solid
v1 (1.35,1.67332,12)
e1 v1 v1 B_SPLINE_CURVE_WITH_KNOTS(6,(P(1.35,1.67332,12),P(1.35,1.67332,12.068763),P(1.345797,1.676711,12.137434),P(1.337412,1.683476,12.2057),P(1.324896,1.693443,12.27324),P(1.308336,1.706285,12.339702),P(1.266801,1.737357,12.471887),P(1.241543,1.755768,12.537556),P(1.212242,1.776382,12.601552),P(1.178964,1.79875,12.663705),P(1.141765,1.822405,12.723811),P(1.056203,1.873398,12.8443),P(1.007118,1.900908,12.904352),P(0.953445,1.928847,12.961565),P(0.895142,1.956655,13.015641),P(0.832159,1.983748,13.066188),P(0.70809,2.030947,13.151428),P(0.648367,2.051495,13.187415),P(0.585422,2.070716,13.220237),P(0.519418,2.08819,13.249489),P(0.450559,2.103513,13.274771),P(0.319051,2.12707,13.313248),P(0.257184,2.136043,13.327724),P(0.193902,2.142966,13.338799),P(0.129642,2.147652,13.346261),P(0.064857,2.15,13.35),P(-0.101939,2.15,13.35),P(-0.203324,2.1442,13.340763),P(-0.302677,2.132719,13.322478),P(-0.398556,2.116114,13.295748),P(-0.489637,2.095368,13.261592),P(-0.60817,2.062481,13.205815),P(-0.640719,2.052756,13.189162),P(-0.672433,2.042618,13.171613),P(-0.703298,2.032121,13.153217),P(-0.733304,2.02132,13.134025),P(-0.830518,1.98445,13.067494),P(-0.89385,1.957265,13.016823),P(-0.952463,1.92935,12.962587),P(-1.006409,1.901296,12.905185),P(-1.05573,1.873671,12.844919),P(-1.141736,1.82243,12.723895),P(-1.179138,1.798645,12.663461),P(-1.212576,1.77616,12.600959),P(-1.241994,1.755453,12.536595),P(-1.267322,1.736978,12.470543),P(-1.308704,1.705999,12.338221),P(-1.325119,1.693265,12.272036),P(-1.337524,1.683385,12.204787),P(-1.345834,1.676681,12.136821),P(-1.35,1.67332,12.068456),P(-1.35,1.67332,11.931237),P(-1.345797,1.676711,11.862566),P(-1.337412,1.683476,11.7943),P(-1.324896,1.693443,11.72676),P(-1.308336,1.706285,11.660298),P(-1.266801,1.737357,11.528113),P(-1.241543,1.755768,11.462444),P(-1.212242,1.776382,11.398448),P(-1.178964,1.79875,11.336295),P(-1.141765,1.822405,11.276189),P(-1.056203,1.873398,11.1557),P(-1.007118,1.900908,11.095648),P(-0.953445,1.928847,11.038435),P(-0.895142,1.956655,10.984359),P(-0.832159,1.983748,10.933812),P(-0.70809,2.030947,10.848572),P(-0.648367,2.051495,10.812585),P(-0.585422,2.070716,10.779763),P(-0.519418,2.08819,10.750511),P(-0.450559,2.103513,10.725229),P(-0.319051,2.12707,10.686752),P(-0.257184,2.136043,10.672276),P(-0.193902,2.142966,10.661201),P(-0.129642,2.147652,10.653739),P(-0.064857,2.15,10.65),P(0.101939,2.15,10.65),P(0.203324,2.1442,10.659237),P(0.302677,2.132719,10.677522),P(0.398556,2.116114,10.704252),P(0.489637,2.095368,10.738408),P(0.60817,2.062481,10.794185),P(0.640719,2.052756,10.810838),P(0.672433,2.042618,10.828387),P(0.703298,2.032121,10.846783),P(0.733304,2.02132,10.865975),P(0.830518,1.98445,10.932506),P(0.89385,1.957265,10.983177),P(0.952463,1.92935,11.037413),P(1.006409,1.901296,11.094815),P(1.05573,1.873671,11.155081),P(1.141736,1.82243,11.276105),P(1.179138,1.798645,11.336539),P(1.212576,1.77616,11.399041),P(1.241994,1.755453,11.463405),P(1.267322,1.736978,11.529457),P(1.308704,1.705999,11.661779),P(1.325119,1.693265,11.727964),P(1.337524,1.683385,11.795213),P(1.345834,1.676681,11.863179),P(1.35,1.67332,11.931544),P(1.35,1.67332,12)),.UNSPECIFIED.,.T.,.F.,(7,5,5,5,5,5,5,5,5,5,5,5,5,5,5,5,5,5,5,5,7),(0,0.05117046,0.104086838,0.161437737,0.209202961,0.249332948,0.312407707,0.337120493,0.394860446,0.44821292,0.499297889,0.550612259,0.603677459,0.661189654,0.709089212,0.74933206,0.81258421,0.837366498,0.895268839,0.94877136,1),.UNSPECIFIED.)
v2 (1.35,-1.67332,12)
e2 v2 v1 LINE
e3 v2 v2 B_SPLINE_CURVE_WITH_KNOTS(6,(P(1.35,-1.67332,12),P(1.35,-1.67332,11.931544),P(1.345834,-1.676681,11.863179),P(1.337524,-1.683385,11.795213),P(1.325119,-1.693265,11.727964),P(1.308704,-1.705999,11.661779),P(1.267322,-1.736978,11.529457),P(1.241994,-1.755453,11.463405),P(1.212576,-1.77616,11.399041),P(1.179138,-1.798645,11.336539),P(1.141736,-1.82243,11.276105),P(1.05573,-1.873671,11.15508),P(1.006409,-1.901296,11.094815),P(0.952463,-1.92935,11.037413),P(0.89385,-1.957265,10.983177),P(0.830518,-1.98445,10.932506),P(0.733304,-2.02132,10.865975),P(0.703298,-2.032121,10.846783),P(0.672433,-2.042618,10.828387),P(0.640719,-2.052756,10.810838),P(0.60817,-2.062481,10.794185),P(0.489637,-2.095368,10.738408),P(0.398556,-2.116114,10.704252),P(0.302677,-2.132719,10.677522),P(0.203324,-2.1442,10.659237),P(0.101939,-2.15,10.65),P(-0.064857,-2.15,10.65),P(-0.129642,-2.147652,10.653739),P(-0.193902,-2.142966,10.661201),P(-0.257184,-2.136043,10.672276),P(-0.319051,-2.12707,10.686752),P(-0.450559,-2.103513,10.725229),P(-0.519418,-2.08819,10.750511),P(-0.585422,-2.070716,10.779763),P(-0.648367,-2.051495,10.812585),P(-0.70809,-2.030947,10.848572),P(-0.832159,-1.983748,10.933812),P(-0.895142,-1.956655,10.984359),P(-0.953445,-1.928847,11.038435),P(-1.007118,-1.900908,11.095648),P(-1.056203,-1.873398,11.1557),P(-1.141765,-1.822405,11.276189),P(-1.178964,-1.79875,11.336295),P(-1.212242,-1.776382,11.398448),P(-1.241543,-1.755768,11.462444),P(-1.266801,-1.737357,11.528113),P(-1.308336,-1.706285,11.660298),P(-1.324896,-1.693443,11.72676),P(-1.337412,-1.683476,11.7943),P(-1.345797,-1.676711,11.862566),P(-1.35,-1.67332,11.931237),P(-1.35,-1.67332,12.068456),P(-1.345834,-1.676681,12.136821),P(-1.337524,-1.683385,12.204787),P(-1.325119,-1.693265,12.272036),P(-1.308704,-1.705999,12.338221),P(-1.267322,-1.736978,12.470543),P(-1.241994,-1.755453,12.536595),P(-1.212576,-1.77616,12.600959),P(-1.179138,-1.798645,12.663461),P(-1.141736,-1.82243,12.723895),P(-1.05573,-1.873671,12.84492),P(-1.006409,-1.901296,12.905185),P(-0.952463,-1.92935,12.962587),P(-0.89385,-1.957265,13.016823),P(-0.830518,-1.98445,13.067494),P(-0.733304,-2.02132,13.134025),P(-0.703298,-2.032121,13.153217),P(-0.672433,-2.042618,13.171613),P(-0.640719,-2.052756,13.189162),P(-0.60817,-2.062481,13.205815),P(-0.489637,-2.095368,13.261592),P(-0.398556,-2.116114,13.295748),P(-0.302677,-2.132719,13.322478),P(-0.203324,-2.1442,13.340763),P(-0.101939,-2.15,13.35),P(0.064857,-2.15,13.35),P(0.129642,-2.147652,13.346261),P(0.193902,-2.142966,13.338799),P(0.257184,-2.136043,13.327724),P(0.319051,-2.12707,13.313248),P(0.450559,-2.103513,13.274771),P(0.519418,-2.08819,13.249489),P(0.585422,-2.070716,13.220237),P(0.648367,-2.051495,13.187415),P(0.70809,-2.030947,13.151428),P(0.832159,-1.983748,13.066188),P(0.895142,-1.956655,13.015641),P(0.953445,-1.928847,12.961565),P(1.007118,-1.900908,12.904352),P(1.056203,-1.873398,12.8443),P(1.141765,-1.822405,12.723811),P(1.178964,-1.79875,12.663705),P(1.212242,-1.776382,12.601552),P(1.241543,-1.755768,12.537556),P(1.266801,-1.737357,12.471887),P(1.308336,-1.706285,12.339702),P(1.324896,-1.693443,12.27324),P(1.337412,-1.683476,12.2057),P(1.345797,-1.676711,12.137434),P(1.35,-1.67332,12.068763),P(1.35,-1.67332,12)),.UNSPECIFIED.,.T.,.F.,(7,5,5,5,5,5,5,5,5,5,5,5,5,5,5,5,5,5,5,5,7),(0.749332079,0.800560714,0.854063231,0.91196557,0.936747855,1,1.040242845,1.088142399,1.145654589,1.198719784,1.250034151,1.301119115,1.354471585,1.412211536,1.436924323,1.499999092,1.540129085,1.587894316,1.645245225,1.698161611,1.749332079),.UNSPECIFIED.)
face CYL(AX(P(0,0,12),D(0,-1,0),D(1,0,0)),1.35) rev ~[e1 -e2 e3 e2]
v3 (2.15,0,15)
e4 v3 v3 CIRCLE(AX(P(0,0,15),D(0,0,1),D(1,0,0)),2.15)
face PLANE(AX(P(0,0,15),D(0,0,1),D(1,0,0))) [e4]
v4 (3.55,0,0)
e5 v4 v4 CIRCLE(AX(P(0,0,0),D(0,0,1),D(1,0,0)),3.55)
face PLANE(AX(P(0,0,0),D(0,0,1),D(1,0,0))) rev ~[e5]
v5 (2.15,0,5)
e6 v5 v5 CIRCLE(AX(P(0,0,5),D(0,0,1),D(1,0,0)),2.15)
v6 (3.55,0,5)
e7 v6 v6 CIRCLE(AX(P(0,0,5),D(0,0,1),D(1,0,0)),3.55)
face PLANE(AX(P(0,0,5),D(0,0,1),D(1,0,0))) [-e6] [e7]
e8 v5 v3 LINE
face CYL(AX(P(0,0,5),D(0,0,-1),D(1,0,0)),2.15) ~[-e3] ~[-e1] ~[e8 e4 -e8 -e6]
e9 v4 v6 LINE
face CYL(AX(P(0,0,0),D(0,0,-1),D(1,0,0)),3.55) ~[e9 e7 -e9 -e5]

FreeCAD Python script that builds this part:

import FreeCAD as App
import Part
import Sketcher
Q = App.Units.Quantity

doc = App.newDocument("Part")
body = doc.addObject("PartDesign::Body", "Body")

sketch1 = body.newObject("Sketcher::SketchObject", "Sketch")
sketch1.AttachmentSupport = (doc.getObject("XY_Plane"), [""])
sketch1.MapMode = "FlatFace"
sketch1.addGeometry(Part.Circle(App.Vector(0, 0, 0), App.Vector(0, 0, 1), 3.5), False)
sketch1.addConstraint([
    Sketcher.Constraint("Coincident", 0, 3, -1, 1),
    Sketcher.Constraint("Diameter", 0, Q("7.1 mm")),
])
pad1 = body.newObject("PartDesign::Pad", "Pad")
pad1.Profile = sketch1
pad1.Length = 5

sketch2 = body.newObject("Sketcher::SketchObject", "Sketch001")
sketch2.AttachmentSupport = (doc.getObject("XY_Plane"), [""])
sketch2.MapMode = "FlatFace"
sketch2.AttachmentOffset = App.Placement(App.Vector(0, 0, 5), App.Rotation())
sketch2.addGeometry(Part.Circle(App.Vector(0, 0, 0), App.Vector(0, 0, 1), 2.1), False)
sketch2.addConstraint([
    Sketcher.Constraint("Coincident", 0, 3, -1, 1),
    Sketcher.Constraint("Diameter", 0, Q("4.3 mm")),
])
pad2 = body.newObject("PartDesign::Pad", "Pad001")
pad2.Profile = sketch2
pad2.Length = 10

sketch3 = body.newObject("Sketcher::SketchObject", "Sketch002")
sketch3.AttachmentSupport = (doc.getObject("XZ_Plane"), [""])
sketch3.MapMode = "FlatFace"
sketch3.addGeometry(Part.Circle(App.Vector(0, 12, 0), App.Vector(0, 0, 1), 1.4), False)
sketch3.addConstraint([
    Sketcher.Constraint("PointOnObject", 0, 3, -2),
    Sketcher.Constraint("Diameter", 0, Q("2.7 mm")),
    Sketcher.Constraint("DistanceY", -1, 1, 0, 3, Q("12 mm")),
])
pocket1 = body.newObject("PartDesign::Pocket", "Pocket")
pocket1.Profile = sketch3
pocket1.Type = "ThroughAll"
pocket1.Midplane = True

doc.recompute()
